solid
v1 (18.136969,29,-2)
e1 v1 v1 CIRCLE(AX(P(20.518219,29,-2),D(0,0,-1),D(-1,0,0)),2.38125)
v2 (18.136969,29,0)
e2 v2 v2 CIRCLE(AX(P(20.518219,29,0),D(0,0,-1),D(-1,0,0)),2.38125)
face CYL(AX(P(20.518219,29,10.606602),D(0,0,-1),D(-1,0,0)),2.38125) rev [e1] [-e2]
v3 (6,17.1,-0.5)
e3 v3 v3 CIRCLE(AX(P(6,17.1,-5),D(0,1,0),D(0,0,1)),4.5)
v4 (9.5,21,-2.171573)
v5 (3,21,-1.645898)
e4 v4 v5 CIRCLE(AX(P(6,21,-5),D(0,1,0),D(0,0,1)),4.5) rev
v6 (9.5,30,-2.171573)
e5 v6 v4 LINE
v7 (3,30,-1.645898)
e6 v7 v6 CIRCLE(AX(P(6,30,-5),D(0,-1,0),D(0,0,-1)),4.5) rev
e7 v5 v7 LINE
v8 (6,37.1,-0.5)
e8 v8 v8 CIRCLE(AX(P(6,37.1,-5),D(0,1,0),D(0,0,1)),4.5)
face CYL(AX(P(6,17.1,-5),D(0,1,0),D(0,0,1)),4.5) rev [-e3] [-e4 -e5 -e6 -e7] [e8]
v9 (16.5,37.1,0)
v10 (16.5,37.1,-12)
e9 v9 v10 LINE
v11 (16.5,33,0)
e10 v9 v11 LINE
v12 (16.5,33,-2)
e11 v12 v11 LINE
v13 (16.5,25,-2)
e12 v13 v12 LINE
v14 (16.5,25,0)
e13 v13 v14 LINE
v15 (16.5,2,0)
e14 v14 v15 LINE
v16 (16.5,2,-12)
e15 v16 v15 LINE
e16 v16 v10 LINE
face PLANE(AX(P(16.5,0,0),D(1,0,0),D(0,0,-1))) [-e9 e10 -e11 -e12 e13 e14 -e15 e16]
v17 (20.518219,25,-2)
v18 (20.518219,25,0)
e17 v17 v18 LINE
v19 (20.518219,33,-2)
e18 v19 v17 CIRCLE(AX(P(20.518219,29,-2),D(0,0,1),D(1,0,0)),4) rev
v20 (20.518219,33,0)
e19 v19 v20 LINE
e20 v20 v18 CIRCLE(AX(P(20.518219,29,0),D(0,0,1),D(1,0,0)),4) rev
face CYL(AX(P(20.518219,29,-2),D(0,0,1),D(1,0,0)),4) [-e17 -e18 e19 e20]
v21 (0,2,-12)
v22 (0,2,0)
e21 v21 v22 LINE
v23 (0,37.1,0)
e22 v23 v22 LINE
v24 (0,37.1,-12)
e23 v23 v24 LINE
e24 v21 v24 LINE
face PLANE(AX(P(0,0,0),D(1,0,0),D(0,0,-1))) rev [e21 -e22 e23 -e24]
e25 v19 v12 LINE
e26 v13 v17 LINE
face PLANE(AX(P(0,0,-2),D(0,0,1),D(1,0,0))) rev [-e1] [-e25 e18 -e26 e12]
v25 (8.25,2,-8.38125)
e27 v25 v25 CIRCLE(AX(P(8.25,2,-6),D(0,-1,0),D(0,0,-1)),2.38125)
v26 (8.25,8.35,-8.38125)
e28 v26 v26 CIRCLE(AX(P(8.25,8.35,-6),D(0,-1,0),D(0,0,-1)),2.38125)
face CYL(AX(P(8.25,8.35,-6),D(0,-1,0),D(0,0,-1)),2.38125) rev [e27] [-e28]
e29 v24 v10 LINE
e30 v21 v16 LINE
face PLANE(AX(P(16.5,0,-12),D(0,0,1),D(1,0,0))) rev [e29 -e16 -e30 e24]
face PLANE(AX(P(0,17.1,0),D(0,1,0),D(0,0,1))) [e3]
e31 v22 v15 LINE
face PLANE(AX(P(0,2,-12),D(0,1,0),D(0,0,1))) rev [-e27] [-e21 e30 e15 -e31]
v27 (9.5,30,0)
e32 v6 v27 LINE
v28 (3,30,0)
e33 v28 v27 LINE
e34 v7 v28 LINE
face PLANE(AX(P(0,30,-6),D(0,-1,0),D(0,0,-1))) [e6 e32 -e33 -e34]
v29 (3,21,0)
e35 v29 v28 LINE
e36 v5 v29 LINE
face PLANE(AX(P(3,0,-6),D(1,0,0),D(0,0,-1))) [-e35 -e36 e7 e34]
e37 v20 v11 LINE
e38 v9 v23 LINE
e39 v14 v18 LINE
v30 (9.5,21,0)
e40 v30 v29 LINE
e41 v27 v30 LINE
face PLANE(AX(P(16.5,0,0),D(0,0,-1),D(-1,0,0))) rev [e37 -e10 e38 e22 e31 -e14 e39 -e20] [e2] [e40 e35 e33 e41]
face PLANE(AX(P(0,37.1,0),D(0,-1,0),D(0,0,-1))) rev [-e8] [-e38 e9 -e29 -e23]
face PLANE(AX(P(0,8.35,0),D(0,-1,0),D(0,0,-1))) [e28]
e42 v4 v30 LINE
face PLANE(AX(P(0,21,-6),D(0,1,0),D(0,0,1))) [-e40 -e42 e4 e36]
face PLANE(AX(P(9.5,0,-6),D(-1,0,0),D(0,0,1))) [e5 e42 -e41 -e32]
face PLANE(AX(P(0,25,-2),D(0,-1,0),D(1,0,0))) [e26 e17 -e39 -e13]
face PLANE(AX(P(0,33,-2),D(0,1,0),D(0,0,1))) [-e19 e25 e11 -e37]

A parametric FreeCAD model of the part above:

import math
import FreeCAD as App
import Part
import Sketcher
Q = App.Units.Quantity


def add_polygon(sketch, points):
    """Adds a closed chain of lines whose ends are joined by coincident constraints."""
    first, n = sketch.GeometryCount, len(points)
    for a, b in zip(points, points[1:] + points[:1]):
        sketch.addGeometry(Part.LineSegment(App.Vector(*a, 0), App.Vector(*b, 0)), False)
    for i in range(n):
        sketch.addConstraint(Sketcher.Constraint("Coincident", first + i, 2, first + (i + 1) % n, 1))

doc = App.newDocument("Part")
body = doc.addObject("PartDesign::Body", "Body")

sketch1 = body.newObject("Sketcher::SketchObject", "Sketch")
sketch1.AttachmentSupport = (doc.getObject("YZ_Plane"), [""])
sketch1.MapMode = "FlatFace"
add_polygon(sketch1, [(37.1, 0), (0, 0), (0, -12), (47.706602, -12), (47.706602, 10.606602)])
sketch1.addConstraint([
    Sketcher.Constraint("Horizontal", 0),
    Sketcher.Constraint("Vertical", 1),
    Sketcher.Constraint("Horizontal", 2),
    Sketcher.Constraint("Vertical", 3),
    Sketcher.Constraint("Coincident", 0, 2, -1, 1),
    Sketcher.Constraint("DistanceY", 1, 2, 1, 1, 12.0),
    Sketcher.Constraint("Angle", 4, Q("-135 deg")),
    Sketcher.Constraint("Distance", 4, 15.0),
    Sketcher.Constraint("DistanceX", 0, 2, 0, 1, 37.1),
])
pad1 = body.newObject("PartDesign::Pad", "Pad")
pad1.Profile = sketch1
pad1.Length = 16.5

sketch2 = body.newObject("Sketcher::SketchObject", "Sketch001")
sketch2.AttachmentSupport = (doc.getObject("YZ_Plane"), [""])
sketch2.MapMode = "FlatFace"
add_polygon(sketch2, [(47.706602, 0), (37.1, 0), (47.706602, 10.606602)])
sketch2.addConstraint([
    Sketcher.Constraint("Horizontal", 0),
    Sketcher.Constraint("Vertical", 2),
    Sketcher.Constraint("PointOnObject", 0, 2, -1),
    Sketcher.Constraint("Equal", 0, 2),
    Sketcher.Constraint("Distance", 1, 15.0),
    Sketcher.Constraint("DistanceX", -1, 1, 0, 2, 37.1),
])
pocket1 = body.newObject("PartDesign::Pocket", "Pocket")
pocket1.Profile = sketch2
pocket1.Length = 1.5
pocket1.Reversed = True

sketch3 = body.newObject("Sketcher::SketchObject", "Sketch002")
sketch3.AttachmentSupport = (doc.getObject("YZ_Plane"), [""])
sketch3.MapMode = "FlatFace"
sketch3.AttachmentOffset = App.Placement(App.Vector(0, 0, 16.5), App.Rotation())
add_polygon(sketch3, [(39.959846, 2.859846), (41.020506, 1.799185), (39.22132, 0), (42.756854, 0), (45.439923, 2.683069), (43.672156, 4.450836), (42.257943, 3.036622), (41.197283, 4.097283)])
sketch3.addConstraint([
    Sketcher.Constraint("Horizontal", 2),
    Sketcher.Constraint("PointOnObject", 1, 2, -1),
    Sketcher.Constraint("Perpendicular", 0, 1),
    Sketcher.Constraint("Parallel", 1, 3),
    Sketcher.Constraint("Perpendicular", 3, 4),
    Sketcher.Constraint("Perpendicular", 4, 5),
    Sketcher.Constraint("Perpendicular", 5, 6),
    Sketcher.Constraint("Perpendicular", 6, 7),
    Sketcher.Constraint("Equal", 0, 6),
    Sketcher.Constraint("Angle", 0, Q("-45 deg")),
    Sketcher.Constraint("Distance", 5, 2.0),
    Sketcher.Constraint("Distance", 0, 1.5),
    Sketcher.Constraint("Distance", 4, 2.5),
    Sketcher.Constraint("Distance", 7, 1.75),
    Sketcher.Constraint("DistanceX", 2, 2, 4, 2, 0.915302),
    Sketcher.Constraint("DistanceX", -1, 1, 1, 2, 39.22132),
])
pocket2 = body.newObject("PartDesign::Pocket", "Pocket001")
pocket2.Profile = sketch3
pocket2.Type = "ThroughAll"

sketch4 = body.newObject("Sketcher::SketchObject", "Sketch003")
sketch4.AttachmentSupport = (doc.getObject("YZ_Plane"), [""])
sketch4.MapMode = "FlatFace"
sketch4.AttachmentOffset = App.Placement(App.Vector(0, 0, 16.5), App.Rotation())
add_polygon(sketch4, [(2, 0), (0, 0), (0, -12), (2, -12)])
sketch4.addConstraint([
    Sketcher.Constraint("Horizontal", 0),
    Sketcher.Constraint("Vertical", 1),
    Sketcher.Constraint("Horizontal", 2),
    Sketcher.Constraint("Vertical", 3),
    Sketcher.Constraint("Coincident", 0, 2, -1, 1),
    Sketcher.Constraint("DistanceX", 0, 2, 0, 1, 2.0),
    Sketcher.Constraint("DistanceY", 1, 2, 1, 1, 12.0),
])
pocket3 = body.newObject("PartDesign::Pocket", "Pocket002")
pocket3.Profile = sketch4
pocket3.Type = "ThroughAll"

sketch5 = body.newObject("Sketcher::SketchObject", "Sketch004")
sketch5.AttachmentSupport = (doc.getObject("XY_Plane"), [""])
sketch5.MapMode = "FlatFace"
sketch5.addGeometry([
    Part.LineSegment(App.Vector(16.5, 25, 0), App.Vector(20.518219, 25, 0)),
    Part.ArcOfCircle(Part.Circle(App.Vector(20.518219, 29, 0), App.Vector(0, 0, 1), 4), math.radians(-90), math.radians(90)),
    Part.LineSegment(App.Vector(20.518219, 33, 0), App.Vector(16.5, 33, 0)),
    Part.LineSegment(App.Vector(16.5, 33, 0), App.Vector(16.5, 25, 0)),
], False)
sketch5.addConstraint([
    Sketcher.Constraint("Tangent", 0, 2, 1, 1),
    Sketcher.Constraint("Tangent", 1, 2, 2, 1),
    Sketcher.Constraint("Coincident", 2, 2, 3, 1),
    Sketcher.Constraint("Coincident", 3, 2, 0, 1),
    Sketcher.Constraint("Horizontal", 0),
    Sketcher.Constraint("Horizontal", 2),
    Sketcher.Constraint("Vertical", 3),
    Sketcher.Constraint("Radius", 1, 4.0),
    Sketcher.Constraint("DistanceY", -1, 1, 1, 3, 29.0),
    Sketcher.Constraint("DistanceX", -1, 1, 2, 2, 16.5),
    Sketcher.Constraint("DistanceX", 0, 1, 0, 2, 4.018219),
])
pad2 = body.newObject("PartDesign::Pad", "Pad001")
pad2.Profile = sketch5
pad2.Length = 2
pad2.Reversed = True

sketch6 = body.newObject("Sketcher::SketchObject", "Sketch005")
sketch6.AttachmentSupport = (doc.getObject("XY_Plane"), [""])
sketch6.MapMode = "FlatFace"
sketch6.AttachmentOffset = App.Placement(App.Vector(0, 0, -2), App.Rotation())
sketch6.addGeometry(Part.Circle(App.Vector(20.518219, 29, 0), App.Vector(0, 0, 1), 2.38125), False)
sketch6.addConstraint([
    Sketcher.Constraint("DistanceY", -1, 1, 0, 3, 29.0),
    Sketcher.Constraint("Diameter", 0, 4.7625),
    Sketcher.Constraint("DistanceX", -1, 1, 0, 3, 20.518219),
])
pocket4 = body.newObject("PartDesign::Pocket", "Pocket003")
pocket4.Profile = sketch6
pocket4.Type = "ThroughAll"
pocket4.Reversed = True

sketch7 = body.newObject("Sketcher::SketchObject", "Sketch006")
sketch7.AttachmentSupport = (doc.getObject("YZ_Plane"), [""])
sketch7.MapMode = "FlatFace"
sketch7.AttachmentOffset = App.Placement(App.Vector(0, 0, 16.5), App.Rotation())
add_polygon(sketch7, [(47.706602, 10.606602), (37.1, 0), (37.1, -12), (47.706602, -12)])
sketch7.addConstraint([
    Sketcher.Constraint("Vertical", 1),
    Sketcher.Constraint("Horizontal", 2),
    Sketcher.Constraint("Vertical", 3),
    Sketcher.Constraint("PointOnObject", 0, 2, -1),
    Sketcher.Constraint("DistanceY", 1, 2, 1, 1, 12.0),
    Sketcher.Constraint("Angle", 0, Q("-135 deg")),
    Sketcher.Constraint("Distance", 0, 15.0),
    Sketcher.Constraint("DistanceX", -1, 1, 0, 2, 37.1),
])
pocket5 = body.newObject("PartDesign::Pocket", "Pocket004")
pocket5.Profile = sketch7
pocket5.Type = "ThroughAll"

sketch8 = body.newObject("Sketcher::SketchObject", "Sketch007")
sketch8.AttachmentSupport = (doc.getObject("XZ_Plane"), [""])
sketch8.MapMode = "FlatFace"
sketch8.AttachmentOffset = App.Placement(App.Vector(0, 0, -2), App.Rotation())
sketch8.addGeometry(Part.Circle(App.Vector(8.25, -6, 0), App.Vector(0, 0, 1), 2.38125), False)
sketch8.addConstraint([
    Sketcher.Constraint("DistanceY", 0, 3, -1, 1, 6.0),
    Sketcher.Constraint("Diameter", 0, 4.7625),
    Sketcher.Constraint("DistanceX", -1, 1, 0, 3, 8.25),
])
pocket6 = body.newObject("PartDesign::Pocket", "Pocket005")
pocket6.Profile = sketch8
pocket6.Length = 6.35

sketch9 = body.newObject("Sketcher::SketchObject", "Sketch008")
sketch9.AttachmentSupport = (doc.getObject("XZ_Plane"), [""])
sketch9.MapMode = "FlatFace"
sketch9.AttachmentOffset = App.Placement(App.Vector(0, 0, -37.1), App.Rotation())
sketch9.addGeometry(Part.Circle(App.Vector(6, -5, 0), App.Vector(0, 0, 1), 4.5), False)
sketch9.addConstraint([
    Sketcher.Constraint("Diameter", 0, 9.0),
    Sketcher.Constraint("DistanceX", -1, 1, 0, 3, 6.0),
    Sketcher.Constraint("DistanceY", 0, 3, -1, 1, 5.0),
])
pocket7 = body.newObject("PartDesign::Pocket", "Pocket006")
pocket7.Profile = sketch9
pocket7.Length = 20
pocket7.Reversed = True

sketch10 = body.newObject("Sketcher::SketchObject", "Sketch009")
sketch10.AttachmentSupport = (doc.getObject("XY_Plane"), [""])
sketch10.MapMode = "FlatFace"
add_polygon(sketch10, [(3, 30), (3, 21), (9.5, 21), (9.5, 30)])
sketch10.addConstraint([
    Sketcher.Constraint("Vertical", 0),
    Sketcher.Constraint("Horizontal", 1),
    Sketcher.Constraint("Vertical", 2),
    Sketcher.Constraint("Horizontal", 3),
    Sketcher.Constraint("DistanceY", 0, 2, 0, 1, 9.0),
    Sketcher.Constraint("DistanceX", 1, 1, 1, 2, 6.5),
    Sketcher.Constraint("DistanceX", -1, 1, 0, 2, 3.0),
    Sketcher.Constraint("DistanceY", -1, 1, 0, 2, 21.0),
])
pocket8 = body.newObject("PartDesign::Pocket", "Pocket007")
pocket8.Profile = sketch10
pocket8.Length = 6

doc.recompute()
